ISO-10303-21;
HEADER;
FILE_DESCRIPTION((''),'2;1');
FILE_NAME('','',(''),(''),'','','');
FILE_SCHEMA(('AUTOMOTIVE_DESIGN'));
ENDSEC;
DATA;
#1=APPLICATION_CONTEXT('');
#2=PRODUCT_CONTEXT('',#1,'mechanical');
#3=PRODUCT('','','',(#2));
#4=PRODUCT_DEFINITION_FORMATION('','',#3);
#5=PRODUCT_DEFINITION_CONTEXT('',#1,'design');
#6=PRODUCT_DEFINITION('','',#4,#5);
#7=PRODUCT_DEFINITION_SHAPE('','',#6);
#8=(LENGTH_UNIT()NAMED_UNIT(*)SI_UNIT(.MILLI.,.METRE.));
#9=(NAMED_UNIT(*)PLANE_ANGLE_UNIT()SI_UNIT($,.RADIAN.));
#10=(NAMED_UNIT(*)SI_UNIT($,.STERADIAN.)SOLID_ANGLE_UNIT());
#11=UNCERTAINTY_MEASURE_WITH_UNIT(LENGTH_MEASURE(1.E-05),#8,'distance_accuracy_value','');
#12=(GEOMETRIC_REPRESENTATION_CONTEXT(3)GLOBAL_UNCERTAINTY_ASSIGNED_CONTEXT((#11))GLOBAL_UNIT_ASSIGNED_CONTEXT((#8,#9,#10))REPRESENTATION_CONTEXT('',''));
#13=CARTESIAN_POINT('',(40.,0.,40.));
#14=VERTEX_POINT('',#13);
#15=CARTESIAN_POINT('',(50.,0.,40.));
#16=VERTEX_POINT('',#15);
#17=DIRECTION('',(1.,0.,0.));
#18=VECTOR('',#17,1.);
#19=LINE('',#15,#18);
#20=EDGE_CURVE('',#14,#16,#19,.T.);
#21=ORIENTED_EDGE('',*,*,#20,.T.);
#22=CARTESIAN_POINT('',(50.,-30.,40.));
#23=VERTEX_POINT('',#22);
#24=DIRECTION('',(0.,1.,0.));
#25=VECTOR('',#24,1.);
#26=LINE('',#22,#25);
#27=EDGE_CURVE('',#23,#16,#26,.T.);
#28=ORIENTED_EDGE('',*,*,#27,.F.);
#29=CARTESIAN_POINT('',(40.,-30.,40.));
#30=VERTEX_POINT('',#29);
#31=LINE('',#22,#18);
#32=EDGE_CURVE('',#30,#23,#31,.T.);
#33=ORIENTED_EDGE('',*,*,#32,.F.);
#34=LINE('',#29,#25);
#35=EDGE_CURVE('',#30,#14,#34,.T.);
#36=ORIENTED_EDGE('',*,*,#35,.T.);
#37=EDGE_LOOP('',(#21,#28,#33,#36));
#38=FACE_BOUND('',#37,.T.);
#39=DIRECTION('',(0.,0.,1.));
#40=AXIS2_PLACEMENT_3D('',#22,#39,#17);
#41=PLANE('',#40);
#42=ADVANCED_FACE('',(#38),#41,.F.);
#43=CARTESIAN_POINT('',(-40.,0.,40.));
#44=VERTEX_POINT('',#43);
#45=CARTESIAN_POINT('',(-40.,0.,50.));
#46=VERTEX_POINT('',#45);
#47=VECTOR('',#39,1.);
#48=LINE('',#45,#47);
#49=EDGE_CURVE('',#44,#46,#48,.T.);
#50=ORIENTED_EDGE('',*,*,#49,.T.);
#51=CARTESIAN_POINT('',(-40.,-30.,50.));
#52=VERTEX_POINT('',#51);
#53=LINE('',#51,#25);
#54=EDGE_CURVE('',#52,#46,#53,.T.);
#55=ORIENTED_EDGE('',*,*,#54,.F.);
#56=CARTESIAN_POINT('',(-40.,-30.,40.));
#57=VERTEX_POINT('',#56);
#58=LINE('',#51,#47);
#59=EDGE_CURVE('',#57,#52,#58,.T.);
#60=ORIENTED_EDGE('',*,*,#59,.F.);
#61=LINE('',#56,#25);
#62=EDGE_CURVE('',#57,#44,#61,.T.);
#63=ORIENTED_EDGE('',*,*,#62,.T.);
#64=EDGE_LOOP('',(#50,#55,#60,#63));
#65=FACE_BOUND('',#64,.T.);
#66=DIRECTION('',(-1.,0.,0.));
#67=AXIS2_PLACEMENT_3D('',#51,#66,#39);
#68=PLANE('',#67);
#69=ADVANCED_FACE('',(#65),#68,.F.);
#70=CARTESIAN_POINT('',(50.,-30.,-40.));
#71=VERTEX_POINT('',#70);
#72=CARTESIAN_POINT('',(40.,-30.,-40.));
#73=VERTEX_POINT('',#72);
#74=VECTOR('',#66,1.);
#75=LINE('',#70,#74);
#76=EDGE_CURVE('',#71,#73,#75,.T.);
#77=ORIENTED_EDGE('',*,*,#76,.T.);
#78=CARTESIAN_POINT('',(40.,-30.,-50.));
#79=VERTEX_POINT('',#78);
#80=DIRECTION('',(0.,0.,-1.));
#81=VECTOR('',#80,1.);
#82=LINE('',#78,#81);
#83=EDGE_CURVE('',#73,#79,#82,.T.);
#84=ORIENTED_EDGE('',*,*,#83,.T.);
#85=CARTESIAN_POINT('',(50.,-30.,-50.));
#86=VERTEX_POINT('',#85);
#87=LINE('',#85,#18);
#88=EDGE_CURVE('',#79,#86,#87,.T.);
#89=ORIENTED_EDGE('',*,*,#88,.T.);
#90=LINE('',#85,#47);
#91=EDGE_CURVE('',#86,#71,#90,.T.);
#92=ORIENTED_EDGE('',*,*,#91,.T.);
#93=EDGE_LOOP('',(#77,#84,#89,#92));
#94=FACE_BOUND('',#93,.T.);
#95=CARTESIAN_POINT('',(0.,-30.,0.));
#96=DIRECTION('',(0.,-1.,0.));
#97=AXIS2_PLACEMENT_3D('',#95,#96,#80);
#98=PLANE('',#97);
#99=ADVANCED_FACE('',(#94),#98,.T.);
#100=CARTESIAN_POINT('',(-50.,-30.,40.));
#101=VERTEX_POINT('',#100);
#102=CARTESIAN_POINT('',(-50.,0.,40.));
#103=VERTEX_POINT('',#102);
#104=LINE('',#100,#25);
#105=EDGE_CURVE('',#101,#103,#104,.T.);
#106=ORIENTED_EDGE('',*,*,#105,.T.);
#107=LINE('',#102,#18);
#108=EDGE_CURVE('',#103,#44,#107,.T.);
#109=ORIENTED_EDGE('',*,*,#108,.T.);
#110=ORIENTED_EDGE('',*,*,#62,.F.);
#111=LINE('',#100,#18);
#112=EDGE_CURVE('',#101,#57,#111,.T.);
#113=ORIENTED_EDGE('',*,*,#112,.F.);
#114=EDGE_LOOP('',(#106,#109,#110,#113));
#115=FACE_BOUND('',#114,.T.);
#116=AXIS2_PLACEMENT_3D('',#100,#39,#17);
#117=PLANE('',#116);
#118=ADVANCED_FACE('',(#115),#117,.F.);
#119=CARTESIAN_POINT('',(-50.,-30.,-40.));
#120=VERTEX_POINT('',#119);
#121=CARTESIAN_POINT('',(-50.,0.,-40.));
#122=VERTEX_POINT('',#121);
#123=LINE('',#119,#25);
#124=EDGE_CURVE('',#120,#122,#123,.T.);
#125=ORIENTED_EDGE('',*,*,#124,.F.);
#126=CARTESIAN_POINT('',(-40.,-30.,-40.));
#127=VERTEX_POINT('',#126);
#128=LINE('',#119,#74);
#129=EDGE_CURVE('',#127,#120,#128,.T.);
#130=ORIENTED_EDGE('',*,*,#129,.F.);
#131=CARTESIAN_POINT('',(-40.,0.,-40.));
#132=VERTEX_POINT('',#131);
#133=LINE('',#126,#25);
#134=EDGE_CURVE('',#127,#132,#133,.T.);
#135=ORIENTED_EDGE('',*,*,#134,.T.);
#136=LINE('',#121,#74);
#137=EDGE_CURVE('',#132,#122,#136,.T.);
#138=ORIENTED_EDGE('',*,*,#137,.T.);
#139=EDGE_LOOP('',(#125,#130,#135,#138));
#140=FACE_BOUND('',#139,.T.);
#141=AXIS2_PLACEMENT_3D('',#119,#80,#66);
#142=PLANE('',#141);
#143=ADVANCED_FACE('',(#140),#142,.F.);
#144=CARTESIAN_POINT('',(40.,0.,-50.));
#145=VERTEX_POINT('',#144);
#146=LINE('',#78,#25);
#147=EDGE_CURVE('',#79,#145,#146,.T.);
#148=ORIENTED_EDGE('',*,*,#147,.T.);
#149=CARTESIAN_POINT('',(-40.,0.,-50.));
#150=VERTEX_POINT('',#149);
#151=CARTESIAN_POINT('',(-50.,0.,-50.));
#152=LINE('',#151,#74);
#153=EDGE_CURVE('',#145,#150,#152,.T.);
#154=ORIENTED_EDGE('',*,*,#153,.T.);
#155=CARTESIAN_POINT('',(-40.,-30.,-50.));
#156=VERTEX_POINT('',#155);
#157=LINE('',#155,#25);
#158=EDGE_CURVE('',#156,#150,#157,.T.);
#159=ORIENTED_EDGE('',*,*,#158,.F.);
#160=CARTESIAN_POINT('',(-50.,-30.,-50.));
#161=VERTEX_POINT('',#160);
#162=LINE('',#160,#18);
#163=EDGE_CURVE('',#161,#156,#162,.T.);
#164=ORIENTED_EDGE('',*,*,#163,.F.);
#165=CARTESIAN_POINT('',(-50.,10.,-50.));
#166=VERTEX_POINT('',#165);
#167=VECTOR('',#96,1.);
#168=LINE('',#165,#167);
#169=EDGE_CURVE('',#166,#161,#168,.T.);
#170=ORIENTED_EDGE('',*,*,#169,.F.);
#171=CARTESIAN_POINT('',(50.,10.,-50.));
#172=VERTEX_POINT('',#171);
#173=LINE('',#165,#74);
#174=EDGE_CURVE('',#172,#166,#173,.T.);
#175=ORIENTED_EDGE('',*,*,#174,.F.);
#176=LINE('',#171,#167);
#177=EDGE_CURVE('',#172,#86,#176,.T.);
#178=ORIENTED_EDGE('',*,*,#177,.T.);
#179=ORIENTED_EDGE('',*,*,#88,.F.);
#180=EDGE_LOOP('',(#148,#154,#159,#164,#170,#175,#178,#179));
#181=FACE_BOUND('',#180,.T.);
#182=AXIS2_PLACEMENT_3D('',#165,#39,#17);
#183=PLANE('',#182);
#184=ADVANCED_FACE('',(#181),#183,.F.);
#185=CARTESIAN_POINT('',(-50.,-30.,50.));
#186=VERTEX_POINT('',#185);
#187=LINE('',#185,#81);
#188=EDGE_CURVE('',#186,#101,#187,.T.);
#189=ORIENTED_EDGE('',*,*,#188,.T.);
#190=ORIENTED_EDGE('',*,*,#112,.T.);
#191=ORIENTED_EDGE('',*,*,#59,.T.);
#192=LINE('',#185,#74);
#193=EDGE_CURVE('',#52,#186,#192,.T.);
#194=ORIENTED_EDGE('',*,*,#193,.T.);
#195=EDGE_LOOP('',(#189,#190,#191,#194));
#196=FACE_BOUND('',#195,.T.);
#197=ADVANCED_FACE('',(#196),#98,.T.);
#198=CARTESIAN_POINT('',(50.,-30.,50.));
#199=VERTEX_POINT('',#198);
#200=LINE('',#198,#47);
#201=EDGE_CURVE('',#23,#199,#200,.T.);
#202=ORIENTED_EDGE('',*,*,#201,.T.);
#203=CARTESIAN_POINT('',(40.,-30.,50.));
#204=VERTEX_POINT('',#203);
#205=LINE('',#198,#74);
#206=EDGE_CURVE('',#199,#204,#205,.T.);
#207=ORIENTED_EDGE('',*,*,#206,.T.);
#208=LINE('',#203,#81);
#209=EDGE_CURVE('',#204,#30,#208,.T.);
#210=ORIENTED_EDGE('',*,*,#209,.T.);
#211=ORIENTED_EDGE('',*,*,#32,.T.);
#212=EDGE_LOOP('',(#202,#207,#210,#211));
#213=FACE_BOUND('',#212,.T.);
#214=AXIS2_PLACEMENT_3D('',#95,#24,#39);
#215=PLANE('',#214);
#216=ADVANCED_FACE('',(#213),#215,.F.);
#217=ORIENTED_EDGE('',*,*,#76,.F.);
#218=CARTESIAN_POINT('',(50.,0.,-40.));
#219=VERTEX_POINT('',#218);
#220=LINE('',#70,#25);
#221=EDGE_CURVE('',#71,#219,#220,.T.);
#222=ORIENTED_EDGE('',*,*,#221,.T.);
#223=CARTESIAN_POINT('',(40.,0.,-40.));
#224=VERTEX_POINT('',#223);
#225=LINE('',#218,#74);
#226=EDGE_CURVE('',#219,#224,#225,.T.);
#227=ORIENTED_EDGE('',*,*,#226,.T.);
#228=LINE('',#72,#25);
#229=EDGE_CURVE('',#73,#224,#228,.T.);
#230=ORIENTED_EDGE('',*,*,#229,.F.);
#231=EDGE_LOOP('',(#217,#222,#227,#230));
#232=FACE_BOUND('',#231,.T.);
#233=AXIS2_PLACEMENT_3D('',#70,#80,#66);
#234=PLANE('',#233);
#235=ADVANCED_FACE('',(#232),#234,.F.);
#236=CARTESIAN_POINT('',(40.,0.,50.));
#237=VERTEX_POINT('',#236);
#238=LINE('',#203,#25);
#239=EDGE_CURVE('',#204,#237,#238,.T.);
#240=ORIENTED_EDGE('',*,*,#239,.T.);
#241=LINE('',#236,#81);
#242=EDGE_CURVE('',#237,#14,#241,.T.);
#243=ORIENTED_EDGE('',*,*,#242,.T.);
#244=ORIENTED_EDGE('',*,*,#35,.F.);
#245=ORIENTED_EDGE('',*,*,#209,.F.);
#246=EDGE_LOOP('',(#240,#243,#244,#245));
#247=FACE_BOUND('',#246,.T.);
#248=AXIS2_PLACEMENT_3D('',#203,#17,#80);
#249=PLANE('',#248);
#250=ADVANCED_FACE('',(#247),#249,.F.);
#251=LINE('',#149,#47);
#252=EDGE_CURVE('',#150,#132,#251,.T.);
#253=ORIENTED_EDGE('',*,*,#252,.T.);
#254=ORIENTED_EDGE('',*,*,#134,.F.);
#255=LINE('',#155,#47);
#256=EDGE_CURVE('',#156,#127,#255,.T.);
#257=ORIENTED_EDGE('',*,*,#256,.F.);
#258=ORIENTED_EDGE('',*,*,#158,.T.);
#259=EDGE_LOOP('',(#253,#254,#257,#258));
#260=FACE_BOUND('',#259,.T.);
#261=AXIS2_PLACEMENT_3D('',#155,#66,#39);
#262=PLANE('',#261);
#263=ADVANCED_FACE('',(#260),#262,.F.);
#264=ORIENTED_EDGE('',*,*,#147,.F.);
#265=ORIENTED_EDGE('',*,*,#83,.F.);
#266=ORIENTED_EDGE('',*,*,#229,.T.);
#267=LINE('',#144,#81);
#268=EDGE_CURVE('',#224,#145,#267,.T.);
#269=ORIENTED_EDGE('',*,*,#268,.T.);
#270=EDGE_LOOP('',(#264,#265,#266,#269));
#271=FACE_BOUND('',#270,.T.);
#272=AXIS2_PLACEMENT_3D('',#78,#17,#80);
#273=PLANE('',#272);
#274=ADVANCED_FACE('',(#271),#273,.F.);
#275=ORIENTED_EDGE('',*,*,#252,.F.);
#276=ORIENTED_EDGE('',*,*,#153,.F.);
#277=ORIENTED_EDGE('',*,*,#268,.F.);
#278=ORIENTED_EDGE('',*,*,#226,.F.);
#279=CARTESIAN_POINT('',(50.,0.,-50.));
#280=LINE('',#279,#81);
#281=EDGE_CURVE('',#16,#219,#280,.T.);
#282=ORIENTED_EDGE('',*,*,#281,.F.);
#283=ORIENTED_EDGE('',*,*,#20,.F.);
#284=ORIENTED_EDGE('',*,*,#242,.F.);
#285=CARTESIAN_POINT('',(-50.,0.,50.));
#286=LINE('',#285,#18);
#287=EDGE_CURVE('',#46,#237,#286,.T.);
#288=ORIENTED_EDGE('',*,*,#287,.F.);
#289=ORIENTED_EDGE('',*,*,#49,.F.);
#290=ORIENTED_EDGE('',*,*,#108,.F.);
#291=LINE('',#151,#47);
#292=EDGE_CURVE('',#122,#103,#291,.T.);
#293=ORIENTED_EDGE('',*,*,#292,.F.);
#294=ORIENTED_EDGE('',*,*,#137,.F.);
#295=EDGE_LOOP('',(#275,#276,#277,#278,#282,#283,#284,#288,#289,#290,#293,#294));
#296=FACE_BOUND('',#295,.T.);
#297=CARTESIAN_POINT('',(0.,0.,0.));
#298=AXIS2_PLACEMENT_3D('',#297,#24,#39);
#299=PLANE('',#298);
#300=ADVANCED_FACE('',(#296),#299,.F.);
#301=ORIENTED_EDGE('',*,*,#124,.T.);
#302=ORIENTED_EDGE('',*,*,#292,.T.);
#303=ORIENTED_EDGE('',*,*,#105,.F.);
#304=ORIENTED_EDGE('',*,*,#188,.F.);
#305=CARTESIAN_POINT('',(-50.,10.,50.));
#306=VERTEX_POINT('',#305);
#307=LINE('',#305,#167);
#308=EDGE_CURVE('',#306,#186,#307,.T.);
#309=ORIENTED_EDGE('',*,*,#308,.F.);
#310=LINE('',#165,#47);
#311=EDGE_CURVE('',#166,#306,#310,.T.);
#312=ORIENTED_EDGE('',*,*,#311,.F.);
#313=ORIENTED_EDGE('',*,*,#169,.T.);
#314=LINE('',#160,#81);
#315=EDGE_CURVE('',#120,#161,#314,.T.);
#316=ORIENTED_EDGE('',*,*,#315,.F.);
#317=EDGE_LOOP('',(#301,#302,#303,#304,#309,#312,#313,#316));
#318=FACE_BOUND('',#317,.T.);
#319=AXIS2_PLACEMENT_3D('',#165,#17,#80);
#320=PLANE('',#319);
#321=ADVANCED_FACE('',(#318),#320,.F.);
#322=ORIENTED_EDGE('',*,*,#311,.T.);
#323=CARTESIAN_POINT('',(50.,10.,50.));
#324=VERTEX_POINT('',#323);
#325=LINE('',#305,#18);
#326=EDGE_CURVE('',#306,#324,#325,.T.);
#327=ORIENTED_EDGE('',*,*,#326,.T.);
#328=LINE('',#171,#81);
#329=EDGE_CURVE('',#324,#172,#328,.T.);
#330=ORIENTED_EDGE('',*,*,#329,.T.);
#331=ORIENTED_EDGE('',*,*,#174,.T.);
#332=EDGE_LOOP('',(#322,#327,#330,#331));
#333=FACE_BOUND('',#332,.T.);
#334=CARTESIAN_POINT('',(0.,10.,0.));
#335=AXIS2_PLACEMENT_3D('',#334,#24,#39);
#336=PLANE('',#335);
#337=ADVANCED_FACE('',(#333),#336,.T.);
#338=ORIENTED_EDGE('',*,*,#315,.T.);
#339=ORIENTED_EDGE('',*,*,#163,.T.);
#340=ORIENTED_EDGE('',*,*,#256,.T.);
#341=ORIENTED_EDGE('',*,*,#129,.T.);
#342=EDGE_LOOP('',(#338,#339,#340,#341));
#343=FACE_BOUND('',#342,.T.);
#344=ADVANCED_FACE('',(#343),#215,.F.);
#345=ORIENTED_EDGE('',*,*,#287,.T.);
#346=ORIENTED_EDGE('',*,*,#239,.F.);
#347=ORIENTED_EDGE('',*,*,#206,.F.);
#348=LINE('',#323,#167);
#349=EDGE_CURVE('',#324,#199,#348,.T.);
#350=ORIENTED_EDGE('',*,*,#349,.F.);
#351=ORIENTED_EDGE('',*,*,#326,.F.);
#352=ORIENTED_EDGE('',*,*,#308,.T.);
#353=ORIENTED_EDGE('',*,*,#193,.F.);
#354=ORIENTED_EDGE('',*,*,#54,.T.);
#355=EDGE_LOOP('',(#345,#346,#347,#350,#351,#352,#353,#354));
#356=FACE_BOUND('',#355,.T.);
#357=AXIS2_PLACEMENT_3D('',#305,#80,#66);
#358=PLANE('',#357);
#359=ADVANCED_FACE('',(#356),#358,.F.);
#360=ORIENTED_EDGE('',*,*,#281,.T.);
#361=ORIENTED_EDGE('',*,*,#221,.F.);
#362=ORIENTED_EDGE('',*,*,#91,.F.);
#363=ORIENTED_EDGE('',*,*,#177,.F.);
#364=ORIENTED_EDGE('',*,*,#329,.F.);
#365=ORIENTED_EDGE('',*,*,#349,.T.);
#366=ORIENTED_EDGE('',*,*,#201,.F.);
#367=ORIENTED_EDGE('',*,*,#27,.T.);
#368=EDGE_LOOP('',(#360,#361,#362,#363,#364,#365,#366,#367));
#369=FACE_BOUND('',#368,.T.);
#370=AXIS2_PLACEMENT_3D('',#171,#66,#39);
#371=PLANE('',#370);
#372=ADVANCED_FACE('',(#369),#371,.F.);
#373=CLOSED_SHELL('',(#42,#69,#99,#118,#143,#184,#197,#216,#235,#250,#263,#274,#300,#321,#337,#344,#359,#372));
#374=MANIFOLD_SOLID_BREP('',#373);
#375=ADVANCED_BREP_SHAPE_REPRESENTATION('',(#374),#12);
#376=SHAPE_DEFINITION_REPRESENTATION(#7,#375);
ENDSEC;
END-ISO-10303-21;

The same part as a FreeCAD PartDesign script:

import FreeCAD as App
import Part
import Sketcher
from FreeCAD import Vector
Q = App.Units.Quantity

doc = App.newDocument("Part")
body = doc.addObject("PartDesign::Body", "Body")

sketch1 = doc.addObject("Sketcher::SketchObject", "Sketch")
body.addObject(sketch1)
sketch1.AttachmentSupport = (doc.XZ_Plane, [""])
sketch1.MapMode = "FlatFace"
sketch1.addGeometry([
    Part.LineSegment(Vector(-50, -50, 0), Vector(-50, 50, 0)),
    Part.LineSegment(Vector(-50, 50, 0), Vector(50, 50, 0)),
    Part.LineSegment(Vector(50, 50, 0), Vector(50, -50, 0)),
    Part.LineSegment(Vector(50, -50, 0), Vector(-50, -50, 0)),
], False)
sketch1.addConstraint([
    Sketcher.Constraint("Coincident", 0, 2, 1, 1),
    Sketcher.Constraint("Coincident", 1, 2, 2, 1),
    Sketcher.Constraint("Coincident", 2, 2, 3, 1),
    Sketcher.Constraint("Coincident", 3, 2, 0, 1),
    Sketcher.Constraint("Vertical", 0),
    Sketcher.Constraint("Horizontal", 1),
    Sketcher.Constraint("Vertical", 2),
    Sketcher.Constraint("Horizontal", 3),
    Sketcher.Constraint("Symmetric", 0, 2, 2, 2, -1, 1),
    Sketcher.Constraint("Equal", 3, 0),
    Sketcher.Constraint("DistanceX", 1, 1, 1, 2, Q("100 mm")),
])
pad1 = doc.addObject("PartDesign::Pad", "Pad")
body.addObject(pad1)
pad1.Profile = sketch1
pad1.Length = 10
pad1.Reversed = True

sketch2 = doc.addObject("Sketcher::SketchObject", "Sketch001")
body.addObject(sketch2)
sketch2.AttachmentSupport = (doc.XZ_Plane, [""])
sketch2.MapMode = "FlatFace"
sketch2.addGeometry([
    Part.LineSegment(Vector(50, 40, 0), Vector(50, 50, 0)),
    Part.LineSegment(Vector(50, 50, 0), Vector(40, 50, 0)),
    Part.LineSegment(Vector(40, 50, 0), Vector(40, 40, 0)),
    Part.LineSegment(Vector(40, 40, 0), Vector(50, 40, 0)),
    Part.LineSegment(Vector(-40, 40, 0), Vector(-40, 50, 0)),
    Part.LineSegment(Vector(-40, 50, 0), Vector(-50, 50, 0)),
    Part.LineSegment(Vector(-50, 50, 0), Vector(-50, 40, 0)),
    Part.LineSegment(Vector(-50, 40, 0), Vector(-40, 40, 0)),
    Part.LineSegment(Vector(-40, -50, 0), Vector(-40, -40, 0)),
    Part.LineSegment(Vector(-40, -40, 0), Vector(-50, -40, 0)),
    Part.LineSegment(Vector(-50, -40, 0), Vector(-50, -50, 0)),
    Part.LineSegment(Vector(-50, -50, 0), Vector(-40, -50, 0)),
    Part.LineSegment(Vector(50, -50, 0), Vector(50, -40, 0)),
    Part.LineSegment(Vector(50, -40, 0), Vector(40, -40, 0)),
    Part.LineSegment(Vector(40, -40, 0), Vector(40, -50, 0)),
    Part.LineSegment(Vector(40, -50, 0), Vector(50, -50, 0)),
], False)
sketch2.addConstraint([
    Sketcher.Constraint("Coincident", 0, 2, 1, 1),
    Sketcher.Constraint("Coincident", 1, 2, 2, 1),
    Sketcher.Constraint("Coincident", 2, 2, 3, 1),
    Sketcher.Constraint("Coincident", 3, 2, 0, 1),
    Sketcher.Constraint("Coincident", 4, 2, 5, 1),
    Sketcher.Constraint("Coincident", 5, 2, 6, 1),
    Sketcher.Constraint("Coincident", 6, 2, 7, 1),
    Sketcher.Constraint("Coincident", 7, 2, 4, 1),
    Sketcher.Constraint("Coincident", 8, 2, 9, 1),
    Sketcher.Constraint("Coincident", 9, 2, 10, 1),
    Sketcher.Constraint("Coincident", 10, 2, 11, 1),
    Sketcher.Constraint("Coincident", 11, 2, 8, 1),
    Sketcher.Constraint("Coincident", 12, 2, 13, 1),
    Sketcher.Constraint("Coincident", 13, 2, 14, 1),
    Sketcher.Constraint("Coincident", 14, 2, 15, 1),
    Sketcher.Constraint("Coincident", 15, 2, 12, 1),
    Sketcher.Constraint("Vertical", 0),
    Sketcher.Constraint("Horizontal", 1),
    Sketcher.Constraint("Vertical", 2),
    Sketcher.Constraint("Horizontal", 3),
    Sketcher.Constraint("Vertical", 4),
    Sketcher.Constraint("Horizontal", 5),
    Sketcher.Constraint("Vertical", 6),
    Sketcher.Constraint("Horizontal", 7),
    Sketcher.Constraint("Vertical", 8),
    Sketcher.Constraint("Horizontal", 9),
    Sketcher.Constraint("Vertical", 10),
    Sketcher.Constraint("Horizontal", 11),
    Sketcher.Constraint("Vertical", 12),
    Sketcher.Constraint("Horizontal", 13),
    Sketcher.Constraint("Vertical", 14),
    Sketcher.Constraint("Horizontal", 15),
    Sketcher.Constraint("Symmetric", 2, 2, 8, 2, -1, 1),
    Sketcher.Constraint("Symmetric", 0, 2, 10, 2, -1, 1),
    Sketcher.Constraint("Symmetric", 6, 2, 12, 2, -1, 1),
    Sketcher.Constraint("Symmetric", 4, 2, 14, 2, -1, 1),
    Sketcher.Constraint("Symmetric", 1, 2, 4, 2, -2),
    Sketcher.Constraint("Symmetric", 3, 2, 6, 2, -2),
    Sketcher.Constraint("Equal", 15, 0),
    Sketcher.Constraint("DistanceX", 1, 2, 1, 1, Q("10 mm")),
    Sketcher.Constraint("DistanceX", -1, 1, 0, 2, Q("50 mm")),
    Sketcher.Constraint("DistanceY", -1, 1, 0, 2, Q("50 mm")),
])
pad2 = doc.addObject("PartDesign::Pad", "Pad001")
body.addObject(pad2)
pad2.Profile = sketch2
pad2.Length = 30

doc.recompute()
